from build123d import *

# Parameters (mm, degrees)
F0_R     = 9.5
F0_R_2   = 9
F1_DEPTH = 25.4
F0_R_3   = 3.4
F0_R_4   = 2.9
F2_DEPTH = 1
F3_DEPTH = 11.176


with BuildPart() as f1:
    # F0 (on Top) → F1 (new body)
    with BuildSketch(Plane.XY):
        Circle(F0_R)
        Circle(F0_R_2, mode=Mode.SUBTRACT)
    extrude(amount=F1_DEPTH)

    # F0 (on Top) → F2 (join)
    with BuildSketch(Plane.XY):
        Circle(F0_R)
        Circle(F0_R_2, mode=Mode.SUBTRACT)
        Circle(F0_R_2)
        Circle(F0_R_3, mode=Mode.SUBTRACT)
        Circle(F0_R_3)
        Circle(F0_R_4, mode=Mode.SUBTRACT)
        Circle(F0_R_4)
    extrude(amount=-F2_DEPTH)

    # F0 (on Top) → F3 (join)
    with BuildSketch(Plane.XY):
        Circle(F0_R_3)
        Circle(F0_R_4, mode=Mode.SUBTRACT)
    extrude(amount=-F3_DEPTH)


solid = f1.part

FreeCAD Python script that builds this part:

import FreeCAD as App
import Part
import Sketcher

doc = App.newDocument("Part")
body = doc.addObject("PartDesign::Body", "Body")

sketch1 = body.newObject("Sketcher::SketchObject", "Sketch")
sketch1.AttachmentSupport = (doc.getObject("XY_Plane"), [""])
sketch1.MapMode = "FlatFace"
sketch1.addGeometry([
    Part.Circle(App.Vector(0, 0, 0), App.Vector(0, 0, 1), 10),
    Part.Circle(App.Vector(0, 0, 0), App.Vector(0, 0, 1), 9),
], False)
sketch1.addConstraint([
    Sketcher.Constraint("Coincident", 0, 3, -1, 1),
    Sketcher.Constraint("Coincident", 1, 3, -1, 1),
    Sketcher.Constraint("Diameter", 0, 19.0),
    Sketcher.Constraint("Diameter", 1, 18.0),
])
pad1 = body.newObject("PartDesign::Pad", "Pad")
pad1.Profile = sketch1
pad1.Length = 25.4

sketch2 = body.newObject("Sketcher::SketchObject", "Sketch001")
sketch2.AttachmentSupport = (doc.getObject("XY_Plane"), [""])
sketch2.MapMode = "FlatFace"
sketch2.addGeometry(Part.Circle(App.Vector(0, 0, 0), App.Vector(0, 0, 1), 10), False)
sketch2.addConstraint([
    Sketcher.Constraint("Coincident", 0, 3, -1, 1),
    Sketcher.Constraint("Diameter", 0, 19.0),
])
pad2 = body.newObject("PartDesign::Pad", "Pad001")
pad2.Profile = sketch2
pad2.Length = 1
pad2.Reversed = True

sketch3 = body.newObject("Sketcher::SketchObject", "Sketch002")
sketch3.AttachmentSupport = (doc.getObject("XY_Plane"), [""])
sketch3.MapMode = "FlatFace"
sketch3.addGeometry([
    Part.Circle(App.Vector(0, 0, 0), App.Vector(0, 0, 1), 3.4),
    Part.Circle(App.Vector(0, 0, 0), App.Vector(0, 0, 1), 2.9),
], False)
sketch3.addConstraint([
    Sketcher.Constraint("Coincident", 0, 3, -1, 1),
    Sketcher.Constraint("Coincident", 1, 3, -1, 1),
    Sketcher.Constraint("Diameter", 0, 6.8),
    Sketcher.Constraint("Diameter", 1, 5.8),
])
pad3 = body.newObject("PartDesign::Pad", "Pad002")
pad3.Profile = sketch3
pad3.Length = 11.176
pad3.Reversed = True

doc.recompute()
